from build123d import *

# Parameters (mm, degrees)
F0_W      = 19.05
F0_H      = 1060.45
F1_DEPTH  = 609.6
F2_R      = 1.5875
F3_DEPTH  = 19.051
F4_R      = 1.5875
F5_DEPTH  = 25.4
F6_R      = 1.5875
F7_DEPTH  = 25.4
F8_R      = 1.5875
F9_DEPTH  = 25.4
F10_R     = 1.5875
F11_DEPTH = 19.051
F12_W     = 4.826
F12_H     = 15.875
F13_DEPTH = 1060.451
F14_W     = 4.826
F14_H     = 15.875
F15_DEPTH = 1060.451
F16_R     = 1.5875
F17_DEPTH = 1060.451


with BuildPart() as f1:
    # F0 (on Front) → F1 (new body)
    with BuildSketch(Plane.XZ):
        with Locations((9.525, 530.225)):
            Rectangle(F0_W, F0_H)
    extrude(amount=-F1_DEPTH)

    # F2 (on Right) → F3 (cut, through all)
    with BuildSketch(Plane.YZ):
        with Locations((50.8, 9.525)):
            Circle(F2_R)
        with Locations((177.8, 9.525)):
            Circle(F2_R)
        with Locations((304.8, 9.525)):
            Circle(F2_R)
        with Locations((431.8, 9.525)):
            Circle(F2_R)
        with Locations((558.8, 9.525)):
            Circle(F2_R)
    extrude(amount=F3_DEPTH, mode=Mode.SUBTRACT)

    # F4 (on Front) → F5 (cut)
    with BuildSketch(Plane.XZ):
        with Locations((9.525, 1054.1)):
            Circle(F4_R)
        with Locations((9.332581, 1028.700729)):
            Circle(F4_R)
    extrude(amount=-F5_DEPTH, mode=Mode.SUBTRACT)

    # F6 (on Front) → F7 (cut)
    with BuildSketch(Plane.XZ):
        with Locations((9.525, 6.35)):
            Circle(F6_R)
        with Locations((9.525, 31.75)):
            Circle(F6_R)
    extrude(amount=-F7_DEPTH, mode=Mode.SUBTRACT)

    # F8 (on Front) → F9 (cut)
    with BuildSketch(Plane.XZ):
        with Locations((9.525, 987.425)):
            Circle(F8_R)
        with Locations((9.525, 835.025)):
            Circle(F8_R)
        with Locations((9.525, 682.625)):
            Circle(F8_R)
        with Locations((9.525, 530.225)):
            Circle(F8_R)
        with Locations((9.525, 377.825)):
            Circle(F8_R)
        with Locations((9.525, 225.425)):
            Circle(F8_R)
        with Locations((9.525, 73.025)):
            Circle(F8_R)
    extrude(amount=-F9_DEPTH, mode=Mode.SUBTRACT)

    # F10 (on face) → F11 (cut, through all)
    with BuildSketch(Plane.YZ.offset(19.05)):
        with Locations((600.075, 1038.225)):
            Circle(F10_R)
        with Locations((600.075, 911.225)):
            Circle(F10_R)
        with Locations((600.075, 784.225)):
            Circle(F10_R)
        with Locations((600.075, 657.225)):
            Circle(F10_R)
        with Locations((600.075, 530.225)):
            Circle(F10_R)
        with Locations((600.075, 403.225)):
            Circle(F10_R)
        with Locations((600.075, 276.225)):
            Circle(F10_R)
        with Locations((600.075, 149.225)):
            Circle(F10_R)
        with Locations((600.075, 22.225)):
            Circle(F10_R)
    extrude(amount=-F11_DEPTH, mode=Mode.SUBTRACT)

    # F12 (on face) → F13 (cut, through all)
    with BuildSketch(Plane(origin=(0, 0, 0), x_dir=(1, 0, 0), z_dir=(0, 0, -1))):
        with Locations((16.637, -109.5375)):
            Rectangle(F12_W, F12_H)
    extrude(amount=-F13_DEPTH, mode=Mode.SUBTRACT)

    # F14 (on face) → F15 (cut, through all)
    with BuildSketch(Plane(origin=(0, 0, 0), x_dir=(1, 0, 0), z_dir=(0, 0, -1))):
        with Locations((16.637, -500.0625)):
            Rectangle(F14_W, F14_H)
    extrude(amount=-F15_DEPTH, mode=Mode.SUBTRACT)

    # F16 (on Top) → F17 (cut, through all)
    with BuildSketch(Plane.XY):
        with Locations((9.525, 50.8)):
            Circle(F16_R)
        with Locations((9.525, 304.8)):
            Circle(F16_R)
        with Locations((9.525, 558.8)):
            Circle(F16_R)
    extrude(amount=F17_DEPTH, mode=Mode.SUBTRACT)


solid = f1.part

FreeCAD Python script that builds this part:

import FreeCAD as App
import Part
import Sketcher
from FreeCAD import Vector
Q = App.Units.Quantity


def add_polygon(sketch, points):
    """Adds a closed chain of lines whose ends are joined by coincident constraints."""
    first, n = sketch.GeometryCount, len(points)
    for a, b in zip(points, points[1:] + points[:1]):
        sketch.addGeometry(Part.LineSegment(App.Vector(*a, 0), App.Vector(*b, 0)), False)
    for i in range(n):
        sketch.addConstraint(Sketcher.Constraint("Coincident", first + i, 2, first + (i + 1) % n, 1))

doc = App.newDocument("Part")
body = doc.addObject("PartDesign::Body", "Body")

# Sketch on XZ plane
sketch1 = body.newObject("Sketcher::SketchObject", "Sketch")
sketch1.AttachmentSupport = (doc.getObject("XZ_Plane"), [""])
sketch1.MapMode = "FlatFace"
add_polygon(sketch1, [(0, 1060), (0, 0), (19, 0), (19, 1060)])  # lines 0-3
sketch1.addConstraint(Sketcher.Constraint("Vertical", 0))
sketch1.addConstraint(Sketcher.Constraint("Horizontal", 1))
sketch1.addConstraint(Sketcher.Constraint("Vertical", 2))
sketch1.addConstraint(Sketcher.Constraint("Horizontal", 3))
sketch1.addConstraint(Sketcher.Constraint("Coincident", 0, 2, -1, 1))
sketch1.addConstraint(Sketcher.Constraint("DistanceX", 1, 1, 1, 2, Q("0.75 in")))
sketch1.addConstraint(Sketcher.Constraint("DistanceY", 0, 2, 0, 1, Q("41.75 in")))
pad1 = body.newObject("PartDesign::Pad", "Pad")
pad1.Profile = sketch1
pad1.Length = Q("24 in")
pad1.Reversed = True

# Sketch on YZ plane
sketch2 = body.newObject("Sketcher::SketchObject", "Sketch001")
sketch2.AttachmentSupport = (doc.getObject("YZ_Plane"), [""])
sketch2.MapMode = "FlatFace"
sketch2.addGeometry(Part.Circle(Vector(50.8, 9.5, 0), Vector(0, 0, 1), 1.6), False)
sketch2.addGeometry(Part.Circle(Vector(177.8, 9.5, 0), Vector(0, 0, 1), 1.6), False)
sketch2.addGeometry(Part.Circle(Vector(304.8, 9.5, 0), Vector(0, 0, 1), 1.6), False)
sketch2.addGeometry(Part.Circle(Vector(431.8, 9.5, 0), Vector(0, 0, 1), 1.6), False)
sketch2.addGeometry(Part.Circle(Vector(558.8, 9.5, 0), Vector(0, 0, 1), 1.6), False)
sketch2.addConstraint(Sketcher.Constraint("Equal", 0, 1))
sketch2.addConstraint(Sketcher.Constraint("Equal", 1, 2))
sketch2.addConstraint(Sketcher.Constraint("Equal", 2, 3))
sketch2.addConstraint(Sketcher.Constraint("Equal", 3, 4))
sketch2.addConstraint(Sketcher.Constraint("Horizontal", 0, 3, 1, 3))
sketch2.addConstraint(Sketcher.Constraint("Horizontal", 1, 3, 2, 3))
sketch2.addConstraint(Sketcher.Constraint("Horizontal", 2, 3, 3, 3))
sketch2.addConstraint(Sketcher.Constraint("Horizontal", 3, 3, 4, 3))
sketch2.addConstraint(Sketcher.Constraint("Diameter", 0, Q("0.125 in")))
sketch2.addConstraint(Sketcher.Constraint("DistanceX", -1, 1, 0, 3, Q("2 in")))
sketch2.addConstraint(Sketcher.Constraint("DistanceX", -1, 1, 1, 3, Q("7 in")))
sketch2.addConstraint(Sketcher.Constraint("DistanceX", -1, 1, 2, 3, Q("12 in")))
sketch2.addConstraint(Sketcher.Constraint("DistanceX", -1, 1, 3, 3, Q("17 in")))
sketch2.addConstraint(Sketcher.Constraint("DistanceX", -1, 1, 4, 3, Q("22 in")))
sketch2.addConstraint(Sketcher.Constraint("DistanceY", -1, 1, 0, 3, Q("0.375 in")))
pocket1 = body.newObject("PartDesign::Pocket", "Pocket")
pocket1.Profile = sketch2
pocket1.Type = "ThroughAll"
pocket1.Reversed = True

# Sketch on XZ plane
sketch3 = body.newObject("Sketcher::SketchObject", "Sketch002")
sketch3.AttachmentSupport = (doc.getObject("XZ_Plane"), [""])
sketch3.MapMode = "FlatFace"
sketch3.addGeometry(Part.Circle(Vector(9.525, 1054.1, 0), Vector(0, 0, 1), 1.5875), False)
sketch3.addGeometry(Part.Circle(Vector(9.332581, 1028.700729, 0), Vector(0, 0, 1), 1.5875), False)
sketch3.addConstraint(Sketcher.Constraint("Equal", 0, 1))
sketch3.addConstraint(Sketcher.Constraint("Diameter", 0, Q("0.125 in")))
sketch3.addConstraint(Sketcher.Constraint("DistanceY", -1, 1, 0, 3, Q("41.5 in")))
sketch3.addConstraint(Sketcher.Constraint("DistanceX", -1, 1, 0, 3, Q("0.375 in")))
sketch3.addConstraint(Sketcher.Constraint("DistanceX", -1, 1, 1, 3, Q("9.332581 mm")))
sketch3.addConstraint(Sketcher.Constraint("DistanceY", -1, 1, 1, 3, Q("1028.700729 mm")))
pocket2 = body.newObject("PartDesign::Pocket", "Pocket001")
pocket2.Profile = sketch3
pocket2.Length = Q("1 in")

# Sketch on XZ plane
sketch4 = body.newObject("Sketcher::SketchObject", "Sketch003")
sketch4.AttachmentSupport = (doc.getObject("XZ_Plane"), [""])
sketch4.MapMode = "FlatFace"
sketch4.addGeometry(Part.Circle(Vector(9.5, 6.3, 0), Vector(0, 0, 1), 1.6), False)
sketch4.addGeometry(Part.Circle(Vector(9.5, 31.8, 0), Vector(0, 0, 1), 1.6), False)
sketch4.addConstraint(Sketcher.Constraint("Equal", 0, 1))
sketch4.addConstraint(Sketcher.Constraint("Vertical", 0, 3, 1, 3))
sketch4.addConstraint(Sketcher.Constraint("Diameter", 0, Q("0.125 in")))
sketch4.addConstraint(Sketcher.Constraint("DistanceY", 0, 3, 1, 3, Q("1 in")))
sketch4.addConstraint(Sketcher.Constraint("DistanceY", -1, 1, 0, 3, Q("0.25 in")))
sketch4.addConstraint(Sketcher.Constraint("DistanceX", -1, 1, 0, 3, Q("0.375 in")))
pocket3 = body.newObject("PartDesign::Pocket", "Pocket002")
pocket3.Profile = sketch4
pocket3.Length = Q("1 in")

# Sketch on XZ plane
sketch5 = body.newObject("Sketcher::SketchObject", "Sketch004")
sketch5.AttachmentSupport = (doc.getObject("XZ_Plane"), [""])
sketch5.MapMode = "FlatFace"
sketch5.addGeometry(Part.Circle(Vector(9.5, 987.4, 0), Vector(0, 0, 1), 1.6), False)
sketch5.addGeometry(Part.Circle(Vector(9.5, 835, 0), Vector(0, 0, 1), 1.6), False)
sketch5.addGeometry(Part.Circle(Vector(9.5, 682.6, 0), Vector(0, 0, 1), 1.6), False)
sketch5.addGeometry(Part.Circle(Vector(9.5, 530.2, 0), Vector(0, 0, 1), 1.6), False)
sketch5.addGeometry(Part.Circle(Vector(9.5, 377.8, 0), Vector(0, 0, 1), 1.6), False)
sketch5.addGeometry(Part.Circle(Vector(9.5, 225.4, 0), Vector(0, 0, 1), 1.6), False)
sketch5.addGeometry(Part.Circle(Vector(9.5, 73, 0), Vector(0, 0, 1), 1.6), False)
sketch5.addConstraint(Sketcher.Constraint("Equal", 0, 1))
sketch5.addConstraint(Sketcher.Constraint("Equal", 1, 2))
sketch5.addConstraint(Sketcher.Constraint("Equal", 2, 3))
sketch5.addConstraint(Sketcher.Constraint("Equal", 3, 4))
sketch5.addConstraint(Sketcher.Constraint("Equal", 4, 5))
sketch5.addConstraint(Sketcher.Constraint("Equal", 5, 6))
sketch5.addConstraint(Sketcher.Constraint("Vertical", 0, 3, 1, 3))
sketch5.addConstraint(Sketcher.Constraint("Vertical", 1, 3, 2, 3))
sketch5.addConstraint(Sketcher.Constraint("Vertical", 2, 3, 3, 3))
sketch5.addConstraint(Sketcher.Constraint("Vertical", 3, 3, 4, 3))
sketch5.addConstraint(Sketcher.Constraint("Vertical", 4, 3, 5, 3))
sketch5.addConstraint(Sketcher.Constraint("Vertical", 5, 3, 6, 3))
sketch5.addConstraint(Sketcher.Constraint("Diameter", 0, Q("0.125 in")))
sketch5.addConstraint(Sketcher.Constraint("DistanceY", 1, 3, 0, 3, Q("6 in")))
sketch5.addConstraint(Sketcher.Constraint("DistanceY", 2, 3, 1, 3, Q("6 in")))
sketch5.addConstraint(Sketcher.Constraint("DistanceY", 3, 3, 2, 3, Q("6 in")))
sketch5.addConstraint(Sketcher.Constraint("DistanceY", 4, 3, 3, 3, Q("6 in")))
sketch5.addConstraint(Sketcher.Constraint("DistanceY", 5, 3, 4, 3, Q("6 in")))
sketch5.addConstraint(Sketcher.Constraint("DistanceY", 6, 3, 5, 3, Q("6 in")))
sketch5.addConstraint(Sketcher.Constraint("DistanceX", -1, 1, 0, 3, Q("0.375 in")))
sketch5.addConstraint(Sketcher.Constraint("DistanceY", -1, 1, 0, 3, Q("38.875 in")))
pocket4 = body.newObject("PartDesign::Pocket", "Pocket003")
pocket4.Profile = sketch5
pocket4.Length = Q("1 in")

# Sketch on YZ plane
sketch6 = body.newObject("Sketcher::SketchObject", "Sketch005")
sketch6.AttachmentSupport = (doc.getObject("YZ_Plane"), [""])
sketch6.MapMode = "FlatFace"
sketch6.AttachmentOffset = App.Placement(Vector(0, 0, 0.75 * 25.4), App.Rotation())
sketch6.addGeometry(Part.Circle(Vector(600.1, 1038.2, 0), Vector(0, 0, 1), 1.6), False)
sketch6.addGeometry(Part.Circle(Vector(600.1, 911.2, 0), Vector(0, 0, 1), 1.6), False)
sketch6.addGeometry(Part.Circle(Vector(600.1, 784.2, 0), Vector(0, 0, 1), 1.6), False)
sketch6.addGeometry(Part.Circle(Vector(600.1, 657.2, 0), Vector(0, 0, 1), 1.6), False)
sketch6.addGeometry(Part.Circle(Vector(600.1, 530.2, 0), Vector(0, 0, 1), 1.6), False)
sketch6.addGeometry(Part.Circle(Vector(600.1, 403.2, 0), Vector(0, 0, 1), 1.6), False)
sketch6.addGeometry(Part.Circle(Vector(600.1, 276.2, 0), Vector(0, 0, 1), 1.6), False)
sketch6.addGeometry(Part.Circle(Vector(600.1, 149.2, 0), Vector(0, 0, 1), 1.6), False)
sketch6.addGeometry(Part.Circle(Vector(600.1, 22.2, 0), Vector(0, 0, 1), 1.6), False)
sketch6.addConstraint(Sketcher.Constraint("Equal", 0, 1))
sketch6.addConstraint(Sketcher.Constraint("Equal", 1, 2))
sketch6.addConstraint(Sketcher.Constraint("Equal", 2, 3))
sketch6.addConstraint(Sketcher.Constraint("Equal", 3, 4))
sketch6.addConstraint(Sketcher.Constraint("Equal", 4, 5))
sketch6.addConstraint(Sketcher.Constraint("Equal", 5, 6))
sketch6.addConstraint(Sketcher.Constraint("Equal", 6, 7))
sketch6.addConstraint(Sketcher.Constraint("Equal", 7, 8))
sketch6.addConstraint(Sketcher.Constraint("Vertical", 0, 3, 1, 3))
sketch6.addConstraint(Sketcher.Constraint("Vertical", 1, 3, 2, 3))
sketch6.addConstraint(Sketcher.Constraint("Vertical", 2, 3, 3, 3))
sketch6.addConstraint(Sketcher.Constraint("Vertical", 3, 3, 4, 3))
sketch6.addConstraint(Sketcher.Constraint("Vertical", 4, 3, 5, 3))
sketch6.addConstraint(Sketcher.Constraint("Vertical", 5, 3, 6, 3))
sketch6.addConstraint(Sketcher.Constraint("Vertical", 6, 3, 7, 3))
sketch6.addConstraint(Sketcher.Constraint("Vertical", 7, 3, 8, 3))
sketch6.addConstraint(Sketcher.Constraint("Diameter", 0, Q("0.125 in")))
sketch6.addConstraint(Sketcher.Constraint("DistanceY", 1, 3, 0, 3, Q("5 in")))
sketch6.addConstraint(Sketcher.Constraint("DistanceY", 2, 3, 1, 3, Q("5 in")))
sketch6.addConstraint(Sketcher.Constraint("DistanceY", 3, 3, 2, 3, Q("5 in")))
sketch6.addConstraint(Sketcher.Constraint("DistanceY", 4, 3, 3, 3, Q("5 in")))
sketch6.addConstraint(Sketcher.Constraint("DistanceY", 5, 3, 4, 3, Q("5 in")))
sketch6.addConstraint(Sketcher.Constraint("DistanceY", 6, 3, 5, 3, Q("5 in")))
sketch6.addConstraint(Sketcher.Constraint("DistanceY", 7, 3, 6, 3, Q("5 in")))
sketch6.addConstraint(Sketcher.Constraint("DistanceY", 8, 3, 7, 3, Q("5 in")))
sketch6.addConstraint(Sketcher.Constraint("DistanceX", -1, 1, 0, 3, Q("23.625 in")))
sketch6.addConstraint(Sketcher.Constraint("DistanceY", -1, 1, 0, 3, Q("40.875 in")))
pocket5 = body.newObject("PartDesign::Pocket", "Pocket004")
pocket5.Profile = sketch6
pocket5.Type = "ThroughAll"

# Sketch on XY plane
sketch7 = body.newObject("Sketcher::SketchObject", "Sketch006")
sketch7.AttachmentSupport = (doc.getObject("XY_Plane"), [""])
sketch7.MapMode = "FlatFace"
add_polygon(sketch7, [(14.2, 101.6), (14.2, 117.5), (19.1, 117.5), (19.1, 101.6)])  # lines 0-3
sketch7.addConstraint(Sketcher.Constraint("Vertical", 0))
sketch7.addConstraint(Sketcher.Constraint("Horizontal", 1))
sketch7.addConstraint(Sketcher.Constraint("Vertical", 2))
sketch7.addConstraint(Sketcher.Constraint("Horizontal", 3))
sketch7.addConstraint(Sketcher.Constraint("DistanceY", -1, 1, 2, 2, Q("4 in")))
sketch7.addConstraint(Sketcher.Constraint("DistanceX", 1, 1, 1, 2, Q("0.19 in")))
sketch7.addConstraint(Sketcher.Constraint("DistanceY", 0, 1, 0, 2, Q("0.625 in")))
sketch7.addConstraint(Sketcher.Constraint("DistanceX", -1, 1, 0, 2, Q("0.56 in")))
pocket6 = body.newObject("PartDesign::Pocket", "Pocket005")
pocket6.Profile = sketch7
pocket6.Type = "ThroughAll"
pocket6.Reversed = True

# Sketch on XY plane
sketch8 = body.newObject("Sketcher::SketchObject", "Sketch007")
sketch8.AttachmentSupport = (doc.getObject("XY_Plane"), [""])
sketch8.MapMode = "FlatFace"
add_polygon(sketch8, [(14.2, 492.1), (14.2, 508), (19.1, 508), (19.1, 492.1)])  # lines 0-3
sketch8.addConstraint(Sketcher.Constraint("Vertical", 0))
sketch8.addConstraint(Sketcher.Constraint("Horizontal", 1))
sketch8.addConstraint(Sketcher.Constraint("Vertical", 2))
sketch8.addConstraint(Sketcher.Constraint("Horizontal", 3))
sketch8.addConstraint(Sketcher.Constraint("DistanceY", -1, 1, 0, 2, Q("20 in")))
sketch8.addConstraint(Sketcher.Constraint("DistanceX", 1, 1, 1, 2, Q("0.19 in")))
sketch8.addConstraint(Sketcher.Constraint("DistanceY", 0, 1, 0, 2, Q("0.625 in")))
sketch8.addConstraint(Sketcher.Constraint("DistanceX", -1, 1, 0, 2, Q("0.56 in")))
pocket7 = body.newObject("PartDesign::Pocket", "Pocket006")
pocket7.Profile = sketch8
pocket7.Type = "ThroughAll"
pocket7.Reversed = True

# Sketch on XY plane
sketch9 = body.newObject("Sketcher::SketchObject", "Sketch008")
sketch9.AttachmentSupport = (doc.getObject("XY_Plane"), [""])
sketch9.MapMode = "FlatFace"
sketch9.addGeometry(Part.Circle(Vector(9.5, 50.8, 0), Vector(0, 0, 1), 1.6), False)
sketch9.addGeometry(Part.Circle(Vector(9.5, 304.8, 0), Vector(0, 0, 1), 1.6), False)
sketch9.addGeometry(Part.Circle(Vector(9.5, 558.8, 0), Vector(0, 0, 1), 1.6), False)
sketch9.addConstraint(Sketcher.Constraint("Equal", 0, 1))
sketch9.addConstraint(Sketcher.Constraint("Equal", 1, 2))
sketch9.addConstraint(Sketcher.Constraint("Vertical", 0, 3, 1, 3))
sketch9.addConstraint(Sketcher.Constraint("Vertical", 1, 3, 2, 3))
sketch9.addConstraint(Sketcher.Constraint("Diameter", 0, Q("0.125 in")))
sketch9.addConstraint(Sketcher.Constraint("DistanceY", -1, 1, 0, 3, Q("2 in")))
sketch9.addConstraint(Sketcher.Constraint("DistanceY", -1, 1, 1, 3, Q("12 in")))
sketch9.addConstraint(Sketcher.Constraint("DistanceY", -1, 1, 2, 3, Q("22 in")))
sketch9.addConstraint(Sketcher.Constraint("DistanceX", -1, 1, 0, 3, Q("0.375 in")))
pocket8 = body.newObject("PartDesign::Pocket", "Pocket007")
pocket8.Profile = sketch9
pocket8.Type = "ThroughAll"
pocket8.Reversed = True

doc.recompute()
